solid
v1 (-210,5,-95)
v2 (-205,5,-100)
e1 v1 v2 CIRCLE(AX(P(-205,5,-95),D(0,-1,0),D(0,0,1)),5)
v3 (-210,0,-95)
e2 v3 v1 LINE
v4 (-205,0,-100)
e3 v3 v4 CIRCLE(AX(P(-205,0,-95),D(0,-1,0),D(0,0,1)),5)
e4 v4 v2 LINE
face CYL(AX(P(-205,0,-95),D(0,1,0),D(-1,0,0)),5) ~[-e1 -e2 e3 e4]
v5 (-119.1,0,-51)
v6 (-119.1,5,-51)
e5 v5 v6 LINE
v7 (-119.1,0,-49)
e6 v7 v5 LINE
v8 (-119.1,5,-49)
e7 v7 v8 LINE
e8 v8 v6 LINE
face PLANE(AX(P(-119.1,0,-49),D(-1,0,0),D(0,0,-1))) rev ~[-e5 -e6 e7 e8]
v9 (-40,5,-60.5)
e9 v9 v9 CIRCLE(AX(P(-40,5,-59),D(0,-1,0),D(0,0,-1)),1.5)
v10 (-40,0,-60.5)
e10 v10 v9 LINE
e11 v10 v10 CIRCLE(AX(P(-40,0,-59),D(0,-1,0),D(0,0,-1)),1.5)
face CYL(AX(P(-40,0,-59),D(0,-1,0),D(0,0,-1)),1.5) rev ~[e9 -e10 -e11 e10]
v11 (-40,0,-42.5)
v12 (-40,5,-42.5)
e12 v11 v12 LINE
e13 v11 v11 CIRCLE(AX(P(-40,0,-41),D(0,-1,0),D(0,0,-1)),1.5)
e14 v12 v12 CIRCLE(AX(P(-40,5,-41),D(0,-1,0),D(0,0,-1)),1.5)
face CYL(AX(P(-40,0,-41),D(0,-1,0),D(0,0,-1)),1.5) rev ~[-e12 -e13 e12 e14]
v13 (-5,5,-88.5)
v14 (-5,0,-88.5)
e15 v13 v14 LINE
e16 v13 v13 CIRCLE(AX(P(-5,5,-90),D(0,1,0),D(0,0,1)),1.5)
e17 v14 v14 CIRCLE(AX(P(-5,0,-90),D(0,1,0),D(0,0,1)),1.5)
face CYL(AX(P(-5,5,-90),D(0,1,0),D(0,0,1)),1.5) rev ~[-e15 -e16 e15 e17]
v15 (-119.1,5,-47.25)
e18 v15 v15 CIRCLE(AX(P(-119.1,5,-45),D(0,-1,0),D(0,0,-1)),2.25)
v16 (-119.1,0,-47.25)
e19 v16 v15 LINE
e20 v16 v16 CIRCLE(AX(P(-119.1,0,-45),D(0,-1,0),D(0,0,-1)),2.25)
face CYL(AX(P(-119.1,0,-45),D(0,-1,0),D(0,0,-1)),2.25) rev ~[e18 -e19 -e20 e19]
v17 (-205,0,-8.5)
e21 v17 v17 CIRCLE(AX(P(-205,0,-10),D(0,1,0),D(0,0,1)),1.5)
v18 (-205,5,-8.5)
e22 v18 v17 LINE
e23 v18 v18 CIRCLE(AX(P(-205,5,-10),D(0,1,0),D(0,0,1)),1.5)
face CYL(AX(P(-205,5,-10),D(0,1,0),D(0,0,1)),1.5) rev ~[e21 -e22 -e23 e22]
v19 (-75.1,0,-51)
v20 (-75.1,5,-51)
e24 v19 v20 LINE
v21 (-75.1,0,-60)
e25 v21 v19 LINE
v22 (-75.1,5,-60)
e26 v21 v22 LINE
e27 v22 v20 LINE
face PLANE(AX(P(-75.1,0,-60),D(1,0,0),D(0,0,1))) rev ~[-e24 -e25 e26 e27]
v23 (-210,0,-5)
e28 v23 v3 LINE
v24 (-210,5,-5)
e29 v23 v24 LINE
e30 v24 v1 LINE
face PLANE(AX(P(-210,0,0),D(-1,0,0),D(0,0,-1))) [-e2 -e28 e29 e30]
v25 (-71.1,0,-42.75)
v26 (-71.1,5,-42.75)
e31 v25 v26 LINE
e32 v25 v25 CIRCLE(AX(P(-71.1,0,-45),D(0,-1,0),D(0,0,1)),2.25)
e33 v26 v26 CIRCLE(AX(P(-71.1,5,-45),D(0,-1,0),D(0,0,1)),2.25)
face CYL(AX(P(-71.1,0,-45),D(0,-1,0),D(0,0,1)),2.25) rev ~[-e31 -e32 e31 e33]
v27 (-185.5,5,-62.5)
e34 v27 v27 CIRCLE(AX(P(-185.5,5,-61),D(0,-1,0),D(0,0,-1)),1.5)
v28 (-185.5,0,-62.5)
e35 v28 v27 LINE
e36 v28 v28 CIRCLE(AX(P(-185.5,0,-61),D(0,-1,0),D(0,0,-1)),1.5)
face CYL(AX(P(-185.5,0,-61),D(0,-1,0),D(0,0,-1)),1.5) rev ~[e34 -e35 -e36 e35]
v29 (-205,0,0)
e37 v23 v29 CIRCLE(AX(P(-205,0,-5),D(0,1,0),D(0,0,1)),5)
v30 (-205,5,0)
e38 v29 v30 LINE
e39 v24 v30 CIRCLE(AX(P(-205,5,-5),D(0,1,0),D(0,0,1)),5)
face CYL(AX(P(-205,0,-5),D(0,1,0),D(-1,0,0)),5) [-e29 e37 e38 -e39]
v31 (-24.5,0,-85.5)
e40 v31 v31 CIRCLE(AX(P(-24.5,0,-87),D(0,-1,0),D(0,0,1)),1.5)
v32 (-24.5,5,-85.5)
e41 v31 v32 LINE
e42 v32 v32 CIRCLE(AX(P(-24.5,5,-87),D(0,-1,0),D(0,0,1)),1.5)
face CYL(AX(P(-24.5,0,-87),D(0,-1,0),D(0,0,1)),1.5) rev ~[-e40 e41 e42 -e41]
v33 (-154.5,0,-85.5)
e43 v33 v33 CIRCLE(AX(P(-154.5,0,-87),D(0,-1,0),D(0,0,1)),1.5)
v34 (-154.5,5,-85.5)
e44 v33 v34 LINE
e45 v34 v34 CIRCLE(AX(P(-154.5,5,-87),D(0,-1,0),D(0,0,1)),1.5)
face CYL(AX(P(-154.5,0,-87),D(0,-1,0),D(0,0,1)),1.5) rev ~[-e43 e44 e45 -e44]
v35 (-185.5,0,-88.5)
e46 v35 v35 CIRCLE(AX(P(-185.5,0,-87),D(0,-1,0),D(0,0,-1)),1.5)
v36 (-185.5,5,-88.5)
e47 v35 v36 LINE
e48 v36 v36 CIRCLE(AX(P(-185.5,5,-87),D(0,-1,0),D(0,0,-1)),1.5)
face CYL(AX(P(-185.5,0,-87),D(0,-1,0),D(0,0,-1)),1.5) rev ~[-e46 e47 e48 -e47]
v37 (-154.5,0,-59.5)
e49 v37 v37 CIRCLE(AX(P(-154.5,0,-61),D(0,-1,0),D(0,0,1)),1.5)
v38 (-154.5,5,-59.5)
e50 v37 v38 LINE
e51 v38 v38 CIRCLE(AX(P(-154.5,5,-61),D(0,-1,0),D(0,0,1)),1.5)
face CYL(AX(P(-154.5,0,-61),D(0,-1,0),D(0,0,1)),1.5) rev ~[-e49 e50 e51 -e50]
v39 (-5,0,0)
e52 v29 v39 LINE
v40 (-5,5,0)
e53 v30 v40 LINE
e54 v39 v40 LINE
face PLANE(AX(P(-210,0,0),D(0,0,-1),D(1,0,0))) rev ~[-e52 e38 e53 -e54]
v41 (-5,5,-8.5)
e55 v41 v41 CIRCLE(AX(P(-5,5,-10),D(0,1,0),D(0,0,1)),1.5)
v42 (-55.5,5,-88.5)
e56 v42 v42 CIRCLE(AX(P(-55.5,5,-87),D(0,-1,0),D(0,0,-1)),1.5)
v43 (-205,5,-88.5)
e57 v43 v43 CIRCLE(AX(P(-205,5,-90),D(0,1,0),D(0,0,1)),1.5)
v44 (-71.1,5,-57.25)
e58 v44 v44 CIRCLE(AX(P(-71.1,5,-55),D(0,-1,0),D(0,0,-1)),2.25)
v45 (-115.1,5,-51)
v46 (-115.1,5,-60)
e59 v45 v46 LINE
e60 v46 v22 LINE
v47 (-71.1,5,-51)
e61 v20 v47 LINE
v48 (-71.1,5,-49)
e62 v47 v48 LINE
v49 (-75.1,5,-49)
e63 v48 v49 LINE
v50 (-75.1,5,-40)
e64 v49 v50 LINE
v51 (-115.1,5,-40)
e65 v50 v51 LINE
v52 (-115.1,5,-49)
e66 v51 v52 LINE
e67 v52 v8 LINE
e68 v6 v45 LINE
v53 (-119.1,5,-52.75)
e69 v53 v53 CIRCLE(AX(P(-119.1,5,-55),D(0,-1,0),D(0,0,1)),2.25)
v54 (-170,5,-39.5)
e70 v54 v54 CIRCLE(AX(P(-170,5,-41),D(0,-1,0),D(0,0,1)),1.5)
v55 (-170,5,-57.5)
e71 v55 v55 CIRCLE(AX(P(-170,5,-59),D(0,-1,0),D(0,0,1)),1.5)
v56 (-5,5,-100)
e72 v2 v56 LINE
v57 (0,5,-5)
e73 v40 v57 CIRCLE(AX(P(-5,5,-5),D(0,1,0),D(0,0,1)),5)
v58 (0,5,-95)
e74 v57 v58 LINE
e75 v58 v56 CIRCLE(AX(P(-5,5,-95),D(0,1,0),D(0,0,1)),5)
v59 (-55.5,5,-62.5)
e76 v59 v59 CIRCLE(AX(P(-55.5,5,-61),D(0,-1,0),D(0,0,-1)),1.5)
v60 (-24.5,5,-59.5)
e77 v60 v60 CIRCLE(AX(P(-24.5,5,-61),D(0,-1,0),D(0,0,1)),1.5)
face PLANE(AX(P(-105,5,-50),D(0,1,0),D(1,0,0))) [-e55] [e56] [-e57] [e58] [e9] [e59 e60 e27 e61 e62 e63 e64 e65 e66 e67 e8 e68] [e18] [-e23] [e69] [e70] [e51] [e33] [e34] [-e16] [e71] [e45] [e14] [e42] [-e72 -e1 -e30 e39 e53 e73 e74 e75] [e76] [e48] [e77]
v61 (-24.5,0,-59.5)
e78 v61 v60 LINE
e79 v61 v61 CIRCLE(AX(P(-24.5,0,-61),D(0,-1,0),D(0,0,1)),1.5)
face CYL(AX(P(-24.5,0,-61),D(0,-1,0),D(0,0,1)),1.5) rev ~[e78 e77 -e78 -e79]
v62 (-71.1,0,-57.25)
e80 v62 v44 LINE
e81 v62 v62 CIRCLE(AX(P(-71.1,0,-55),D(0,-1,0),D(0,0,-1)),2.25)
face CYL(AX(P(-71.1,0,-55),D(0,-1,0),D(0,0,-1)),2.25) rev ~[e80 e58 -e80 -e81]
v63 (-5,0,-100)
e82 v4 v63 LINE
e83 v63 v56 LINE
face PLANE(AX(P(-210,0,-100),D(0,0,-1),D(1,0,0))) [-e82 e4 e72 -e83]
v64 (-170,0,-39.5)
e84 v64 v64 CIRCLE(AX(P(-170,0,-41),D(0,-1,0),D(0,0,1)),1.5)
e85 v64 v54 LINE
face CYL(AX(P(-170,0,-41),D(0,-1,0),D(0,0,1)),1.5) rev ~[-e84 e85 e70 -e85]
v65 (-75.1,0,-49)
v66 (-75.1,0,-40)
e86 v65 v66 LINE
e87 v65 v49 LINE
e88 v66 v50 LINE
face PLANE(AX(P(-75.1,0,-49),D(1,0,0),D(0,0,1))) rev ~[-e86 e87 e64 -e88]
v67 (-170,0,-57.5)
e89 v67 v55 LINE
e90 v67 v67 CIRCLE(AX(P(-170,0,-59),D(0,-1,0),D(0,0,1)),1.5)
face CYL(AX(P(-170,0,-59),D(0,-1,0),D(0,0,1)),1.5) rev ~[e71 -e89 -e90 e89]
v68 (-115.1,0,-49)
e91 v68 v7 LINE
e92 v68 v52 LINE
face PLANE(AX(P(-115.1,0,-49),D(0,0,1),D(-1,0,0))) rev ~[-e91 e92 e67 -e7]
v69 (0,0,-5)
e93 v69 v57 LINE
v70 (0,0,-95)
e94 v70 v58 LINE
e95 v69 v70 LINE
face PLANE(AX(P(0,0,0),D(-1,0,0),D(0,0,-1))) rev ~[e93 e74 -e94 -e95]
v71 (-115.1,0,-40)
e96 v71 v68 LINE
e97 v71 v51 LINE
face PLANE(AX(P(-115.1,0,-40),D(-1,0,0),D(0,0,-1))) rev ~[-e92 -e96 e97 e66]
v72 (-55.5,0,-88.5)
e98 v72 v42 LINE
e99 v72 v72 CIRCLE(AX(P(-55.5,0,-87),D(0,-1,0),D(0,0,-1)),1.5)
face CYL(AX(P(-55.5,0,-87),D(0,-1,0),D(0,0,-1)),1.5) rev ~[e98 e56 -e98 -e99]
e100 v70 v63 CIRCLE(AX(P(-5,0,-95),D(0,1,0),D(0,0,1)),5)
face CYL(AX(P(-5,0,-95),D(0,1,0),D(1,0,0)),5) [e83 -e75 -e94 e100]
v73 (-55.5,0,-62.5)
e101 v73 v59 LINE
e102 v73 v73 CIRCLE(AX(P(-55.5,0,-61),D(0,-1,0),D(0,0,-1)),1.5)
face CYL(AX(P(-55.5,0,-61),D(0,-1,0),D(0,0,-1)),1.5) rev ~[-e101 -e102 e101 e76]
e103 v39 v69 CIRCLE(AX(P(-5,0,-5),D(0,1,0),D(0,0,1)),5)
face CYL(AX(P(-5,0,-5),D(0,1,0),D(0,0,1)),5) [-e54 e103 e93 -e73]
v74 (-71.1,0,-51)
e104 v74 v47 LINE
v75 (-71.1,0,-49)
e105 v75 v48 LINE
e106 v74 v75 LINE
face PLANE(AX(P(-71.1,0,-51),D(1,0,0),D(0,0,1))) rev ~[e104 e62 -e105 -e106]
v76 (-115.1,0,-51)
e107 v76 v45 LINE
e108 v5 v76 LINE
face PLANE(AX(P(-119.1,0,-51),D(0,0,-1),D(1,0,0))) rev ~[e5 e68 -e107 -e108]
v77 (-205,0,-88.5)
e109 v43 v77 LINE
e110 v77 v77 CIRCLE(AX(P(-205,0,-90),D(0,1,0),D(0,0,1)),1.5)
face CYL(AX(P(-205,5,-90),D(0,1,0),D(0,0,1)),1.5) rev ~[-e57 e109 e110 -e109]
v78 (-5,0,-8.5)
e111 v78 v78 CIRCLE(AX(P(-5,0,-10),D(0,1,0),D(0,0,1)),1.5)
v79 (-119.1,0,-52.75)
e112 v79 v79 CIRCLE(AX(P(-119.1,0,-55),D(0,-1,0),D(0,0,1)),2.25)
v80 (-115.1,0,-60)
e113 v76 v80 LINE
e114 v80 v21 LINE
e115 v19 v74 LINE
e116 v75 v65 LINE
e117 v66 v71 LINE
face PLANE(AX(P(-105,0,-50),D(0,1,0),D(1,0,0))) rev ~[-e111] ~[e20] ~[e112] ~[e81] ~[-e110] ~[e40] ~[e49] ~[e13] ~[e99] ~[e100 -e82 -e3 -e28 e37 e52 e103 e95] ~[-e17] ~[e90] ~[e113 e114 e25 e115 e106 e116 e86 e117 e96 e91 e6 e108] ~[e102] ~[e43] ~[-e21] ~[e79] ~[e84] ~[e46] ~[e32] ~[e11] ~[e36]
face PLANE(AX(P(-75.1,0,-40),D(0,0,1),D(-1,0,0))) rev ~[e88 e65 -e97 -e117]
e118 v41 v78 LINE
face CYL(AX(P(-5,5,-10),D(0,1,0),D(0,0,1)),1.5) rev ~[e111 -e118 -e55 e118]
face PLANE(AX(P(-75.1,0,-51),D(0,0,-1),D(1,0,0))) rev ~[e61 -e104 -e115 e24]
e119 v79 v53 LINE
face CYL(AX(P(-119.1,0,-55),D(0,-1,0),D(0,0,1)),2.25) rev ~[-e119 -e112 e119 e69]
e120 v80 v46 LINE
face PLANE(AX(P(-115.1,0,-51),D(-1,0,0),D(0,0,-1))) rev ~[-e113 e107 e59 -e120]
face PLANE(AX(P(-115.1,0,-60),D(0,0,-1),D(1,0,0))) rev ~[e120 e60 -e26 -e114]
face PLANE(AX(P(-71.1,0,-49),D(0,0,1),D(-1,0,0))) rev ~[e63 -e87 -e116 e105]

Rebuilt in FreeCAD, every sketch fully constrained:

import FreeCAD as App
import Part
import Sketcher
from FreeCAD import Vector
Q = App.Units.Quantity


def edges_at(feature, points):
    """Names of the edges that pass closest to the given points."""
    edges = feature.Shape.Edges
    near = lambda p: min(range(len(edges)), key=lambda i: edges[i].distToShape(Part.Vertex(*p))[0])
    return sorted({f"Edge{near(p) + 1}" for p in points})

doc = App.newDocument("Part")
body = doc.addObject("PartDesign::Body", "Body")

# Sketch on XZ plane
sketch1 = body.newObject("Sketcher::SketchObject", "Sketch")
sketch1.AttachmentSupport = (doc.getObject("XZ_Plane"), [""])
sketch1.MapMode = "FlatFace"
sketch1.addGeometry([
    Part.LineSegment(Vector(-210, -100, 0), Vector(-210, 0, 0)),
    Part.LineSegment(Vector(-210, 0, 0), Vector(0, 0, 0)),
    Part.LineSegment(Vector(0, 0, 0), Vector(0, -100, 0)),
    Part.LineSegment(Vector(0, -100, 0), Vector(-210, -100, 0)),
], False)
sketch1.addConstraint([
    Sketcher.Constraint("Coincident", 0, 2, 1, 1),
    Sketcher.Constraint("Coincident", 1, 2, 2, 1),
    Sketcher.Constraint("Coincident", 2, 2, 3, 1),
    Sketcher.Constraint("Coincident", 3, 2, 0, 1),
    Sketcher.Constraint("Vertical", 0),
    Sketcher.Constraint("Horizontal", 1),
    Sketcher.Constraint("Vertical", 2),
    Sketcher.Constraint("Horizontal", 3),
    Sketcher.Constraint("Coincident", 1, 2, -1, 1),
    Sketcher.Constraint("DistanceX", 1, 1, 1, 2, Q("210 mm")),
    Sketcher.Constraint("DistanceY", 0, 1, 0, 2, Q("100 mm")),
])
pad1 = body.newObject("PartDesign::Pad", "Pad")
pad1.Profile = sketch1
pad1.Length = 5
pad1.Reversed = True
doc.recompute()

fillet = body.newObject("PartDesign::Fillet", "Fillet")
fillet.Base = (pad1, edges_at(pad1, [
    (-210, 2.5, -100),
    (0, 2.5, -100),
    (0, 2.5, 0),
    (-210, 2.5, 0),
]))
fillet.Radius = 5

# Sketch on XZ plane
sketch2 = body.newObject("Sketcher::SketchObject", "Sketch001")
sketch2.AttachmentSupport = (doc.getObject("XZ_Plane"), [""])
sketch2.MapMode = "FlatFace"
sketch2.AttachmentOffset = App.Placement(Vector(0, 0, -5), App.Rotation())
sketch2.addGeometry([
    Part.Circle(Vector(-205, -90, 0), Vector(0, 0, 1), 1.5),
    Part.Circle(Vector(-205, -10, 0), Vector(0, 0, 1), 1.5),
    Part.Circle(Vector(-5, -10, 0), Vector(0, 0, 1), 1.5),
    Part.Circle(Vector(-5, -90, 0), Vector(0, 0, 1), 1.5),
], False)
sketch2.addConstraint([
    Sketcher.Constraint("Equal", 0, 1),
    Sketcher.Constraint("Equal", 1, 2),
    Sketcher.Constraint("Equal", 2, 3),
    Sketcher.Constraint("Horizontal", 1, 3, 2, 3),
    Sketcher.Constraint("Horizontal", 0, 3, 3, 3),
    Sketcher.Constraint("Vertical", 0, 3, 1, 3),
    Sketcher.Constraint("Vertical", 2, 3, 3, 3),
    Sketcher.Constraint("Diameter", 0, Q("3 mm")),
    Sketcher.Constraint("DistanceX", 0, 3, -1, 1, Q("205 mm")),
    Sketcher.Constraint("DistanceY", 0, 3, -1, 1, Q("90 mm")),
    Sketcher.Constraint("DistanceY", 1, 3, -1, 1, Q("10 mm")),
    Sketcher.Constraint("DistanceX", 2, 3, -1, 1, Q("5 mm")),
])
pocket1 = body.newObject("PartDesign::Pocket", "Pocket")
pocket1.Profile = sketch2
pocket1.Length = 5
pocket1.Reversed = True

# Sketch on XZ plane
sketch3 = body.newObject("Sketcher::SketchObject", "Sketch002")
sketch3.AttachmentSupport = (doc.getObject("XZ_Plane"), [""])
sketch3.MapMode = "FlatFace"
sketch3.addGeometry([
    Part.Circle(Vector(-119.1, -45, 0), Vector(0, 0, 1), 2.2),  # 0
    Part.Circle(Vector(-119.1, -55, 0), Vector(0, 0, 1), 2.2),  # 1
    Part.Circle(Vector(-71.1, -55, 0), Vector(0, 0, 1), 2.2),  # 2
    Part.Circle(Vector(-71.1, -45, 0), Vector(0, 0, 1), 2.2),  # 3
    Part.LineSegment(Vector(-115.1, -60, 0), Vector(-75.1, -60, 0)),  # 4
    Part.LineSegment(Vector(-75.1, -60, 0), Vector(-75.1, -51, 0)),  # 5
    Part.LineSegment(Vector(-75.1, -51, 0), Vector(-71.1, -51, 0)),  # 6
    Part.LineSegment(Vector(-71.1, -51, 0), Vector(-71.1, -49, 0)),  # 7
    Part.LineSegment(Vector(-71.1, -49, 0), Vector(-75.1, -49, 0)),  # 8
    Part.LineSegment(Vector(-75.1, -49, 0), Vector(-75.1, -40, 0)),  # 9
    Part.LineSegment(Vector(-75.1, -40, 0), Vector(-115.1, -40, 0)),  # 10
    Part.LineSegment(Vector(-115.1, -40, 0), Vector(-115.1, -49, 0)),  # 11
    Part.LineSegment(Vector(-115.1, -49, 0), Vector(-119.1, -49, 0)),  # 12
    Part.LineSegment(Vector(-119.1, -49, 0), Vector(-119.1, -51, 0)),  # 13
    Part.LineSegment(Vector(-119.1, -51, 0), Vector(-115.1, -51, 0)),  # 14
    Part.LineSegment(Vector(-115.1, -51, 0), Vector(-115.1, -60, 0)),  # 15
], False)
sketch3.addConstraint([
    Sketcher.Constraint("Coincident", 4, 2, 5, 1),
    Sketcher.Constraint("Coincident", 5, 2, 6, 1),
    Sketcher.Constraint("Coincident", 6, 2, 7, 1),
    Sketcher.Constraint("Coincident", 7, 2, 8, 1),
    Sketcher.Constraint("Coincident", 8, 2, 9, 1),
    Sketcher.Constraint("Coincident", 9, 2, 10, 1),
    Sketcher.Constraint("Coincident", 10, 2, 11, 1),
    Sketcher.Constraint("Coincident", 11, 2, 12, 1),
    Sketcher.Constraint("Coincident", 12, 2, 13, 1),
    Sketcher.Constraint("Coincident", 13, 2, 14, 1),
    Sketcher.Constraint("Coincident", 14, 2, 15, 1),
    Sketcher.Constraint("Coincident", 15, 2, 4, 1),
    Sketcher.Constraint("Horizontal", 4),
    Sketcher.Constraint("Vertical", 5),
    Sketcher.Constraint("Horizontal", 6),
    Sketcher.Constraint("Vertical", 7),
    Sketcher.Constraint("Horizontal", 8),
    Sketcher.Constraint("Vertical", 9),
    Sketcher.Constraint("Horizontal", 10),
    Sketcher.Constraint("Vertical", 11),
    Sketcher.Constraint("Horizontal", 12),
    Sketcher.Constraint("Vertical", 13),
    Sketcher.Constraint("Horizontal", 14),
    Sketcher.Constraint("Vertical", 15),
    Sketcher.Constraint("Equal", 0, 1),
    Sketcher.Constraint("Equal", 1, 2),
    Sketcher.Constraint("Equal", 2, 3),
    Sketcher.Constraint("Horizontal", 1, 3, 2, 3),
    Sketcher.Constraint("Horizontal", 0, 3, 3, 3),
    Sketcher.Constraint("Horizontal", 8, 2, 11, 2),
    Sketcher.Constraint("Horizontal", 6, 2, 13, 2),
    Sketcher.Constraint("Vertical", 0, 3, 1, 3),
    Sketcher.Constraint("Vertical", 2, 3, 3, 3),
    Sketcher.Constraint("Vertical", 3, 3, 6, 2),
    Sketcher.Constraint("Vertical", 5, 2, 8, 2),
    Sketcher.Constraint("Vertical", 1, 3, 12, 2),
    Sketcher.Constraint("Vertical", 11, 2, 14, 2),
    Sketcher.Constraint("Equal", 8, 12),
    Sketcher.Constraint("Equal", 5, 9),
    Sketcher.Constraint("Diameter", 0, Q("4.5 mm")),
    Sketcher.Constraint("DistanceX", 4, 1, 4, 2, Q("40 mm")),
    Sketcher.Constraint("DistanceX", 6, 1, 6, 2, Q("4 mm")),
    Sketcher.Constraint("DistanceY", 5, 1, 5, 2, Q("9 mm")),
    Sketcher.Constraint("DistanceY", 7, 1, 7, 2, Q("2 mm")),
    Sketcher.Constraint("DistanceY", 0, 3, -1, 1, Q("45 mm")),
    Sketcher.Constraint("DistanceY", 1, 3, -1, 1, Q("55 mm")),
    Sketcher.Constraint("DistanceY", 4, 2, -1, 1, Q("60 mm")),
    Sketcher.Constraint("DistanceX", 0, 3, -1, 1, Q("119.1 mm")),
])
pocket2 = body.newObject("PartDesign::Pocket", "Pocket001")
pocket2.Profile = sketch3
pocket2.Length = 5

# Sketch on XZ plane
sketch4 = body.newObject("Sketcher::SketchObject", "Sketch003")
sketch4.AttachmentSupport = (doc.getObject("XZ_Plane"), [""])
sketch4.MapMode = "FlatFace"
sketch4.addGeometry([
    Part.Circle(Vector(-40, -41, 0), Vector(0, 0, 1), 1.5),  # 0
    Part.Circle(Vector(-40, -59, 0), Vector(0, 0, 1), 1.5),  # 1
    Part.Circle(Vector(-170, -59, 0), Vector(0, 0, 1), 1.5),  # 2
    Part.Circle(Vector(-170, -41, 0), Vector(0, 0, 1), 1.5),  # 3
    Part.Circle(Vector(-185.5, -87, 0), Vector(0, 0, 1), 1.5),  # 4
    Part.Circle(Vector(-185.5, -61, 0), Vector(0, 0, 1), 1.5),  # 5
    Part.Circle(Vector(-154.5, -87, 0), Vector(0, 0, 1), 1.5),  # 6
    Part.Circle(Vector(-154.5, -61, 0), Vector(0, 0, 1), 1.5),  # 7
    Part.Circle(Vector(-55.5, -87, 0), Vector(0, 0, 1), 1.5),  # 8
    Part.Circle(Vector(-24.5, -87, 0), Vector(0, 0, 1), 1.5),  # 9
    Part.Circle(Vector(-55.5, -61, 0), Vector(0, 0, 1), 1.5),  # 10
    Part.Circle(Vector(-24.5, -61, 0), Vector(0, 0, 1), 1.5),  # 11
], False)
sketch4.addConstraint([
    Sketcher.Constraint("Equal", 0, 1),
    Sketcher.Constraint("Equal", 1, 2),
    Sketcher.Constraint("Equal", 2, 3),
    Sketcher.Constraint("Equal", 3, 4),
    Sketcher.Constraint("Equal", 4, 5),
    Sketcher.Constraint("Equal", 5, 6),
    Sketcher.Constraint("Equal", 6, 7),
    Sketcher.Constraint("Equal", 7, 8),
    Sketcher.Constraint("Equal", 8, 9),
    Sketcher.Constraint("Equal", 9, 10),
    Sketcher.Constraint("Equal", 10, 11),
    Sketcher.Constraint("Horizontal", 1, 3, 2, 3),
    Sketcher.Constraint("Horizontal", 0, 3, 3, 3),
    Sketcher.Constraint("Horizontal", 4, 3, 6, 3),
    Sketcher.Constraint("Horizontal", 5, 3, 7, 3),
    Sketcher.Constraint("Horizontal", 6, 3, 8, 3),
    Sketcher.Constraint("Horizontal", 8, 3, 9, 3),
    Sketcher.Constraint("Horizontal", 7, 3, 10, 3),
    Sketcher.Constraint("Horizontal", 10, 3, 11, 3),
    Sketcher.Constraint("Vertical", 0, 3, 1, 3),
    Sketcher.Constraint("Vertical", 2, 3, 3, 3),
    Sketcher.Constraint("Vertical", 4, 3, 5, 3),
    Sketcher.Constraint("Vertical", 6, 3, 7, 3),
    Sketcher.Constraint("Vertical", 8, 3, 10, 3),
    Sketcher.Constraint("Vertical", 9, 3, 11, 3),
    Sketcher.Constraint("Diameter", 0, Q("3 mm")),
    Sketcher.Constraint("DistanceX", 0, 3, -1, 1, Q("40 mm")),
    Sketcher.Constraint("DistanceY", 0, 3, -1, 1, Q("41 mm")),
    Sketcher.Constraint("DistanceY", 1, 3, -1, 1, Q("59 mm")),
    Sketcher.Constraint("DistanceX", 2, 3, -1, 1, Q("170 mm")),
    Sketcher.Constraint("DistanceY", 4, 3, -1, 1, Q("87 mm")),
    Sketcher.Constraint("DistanceY", 5, 3, -1, 1, Q("61 mm")),
    Sketcher.Constraint("DistanceX", 4, 3, 6, 3, Q("31 mm")),
    Sketcher.Constraint("DistanceX", 6, 3, 8, 3, Q("99 mm")),
    Sketcher.Constraint("DistanceX", 8, 3, 9, 3, Q("31 mm")),
    Sketcher.Constraint("DistanceX", 4, 3, -1, 1, Q("185.5 mm")),
])
pocket3 = body.newObject("PartDesign::Pocket", "Pocket002")
pocket3.Profile = sketch4
pocket3.Length = 5

doc.recompute()
